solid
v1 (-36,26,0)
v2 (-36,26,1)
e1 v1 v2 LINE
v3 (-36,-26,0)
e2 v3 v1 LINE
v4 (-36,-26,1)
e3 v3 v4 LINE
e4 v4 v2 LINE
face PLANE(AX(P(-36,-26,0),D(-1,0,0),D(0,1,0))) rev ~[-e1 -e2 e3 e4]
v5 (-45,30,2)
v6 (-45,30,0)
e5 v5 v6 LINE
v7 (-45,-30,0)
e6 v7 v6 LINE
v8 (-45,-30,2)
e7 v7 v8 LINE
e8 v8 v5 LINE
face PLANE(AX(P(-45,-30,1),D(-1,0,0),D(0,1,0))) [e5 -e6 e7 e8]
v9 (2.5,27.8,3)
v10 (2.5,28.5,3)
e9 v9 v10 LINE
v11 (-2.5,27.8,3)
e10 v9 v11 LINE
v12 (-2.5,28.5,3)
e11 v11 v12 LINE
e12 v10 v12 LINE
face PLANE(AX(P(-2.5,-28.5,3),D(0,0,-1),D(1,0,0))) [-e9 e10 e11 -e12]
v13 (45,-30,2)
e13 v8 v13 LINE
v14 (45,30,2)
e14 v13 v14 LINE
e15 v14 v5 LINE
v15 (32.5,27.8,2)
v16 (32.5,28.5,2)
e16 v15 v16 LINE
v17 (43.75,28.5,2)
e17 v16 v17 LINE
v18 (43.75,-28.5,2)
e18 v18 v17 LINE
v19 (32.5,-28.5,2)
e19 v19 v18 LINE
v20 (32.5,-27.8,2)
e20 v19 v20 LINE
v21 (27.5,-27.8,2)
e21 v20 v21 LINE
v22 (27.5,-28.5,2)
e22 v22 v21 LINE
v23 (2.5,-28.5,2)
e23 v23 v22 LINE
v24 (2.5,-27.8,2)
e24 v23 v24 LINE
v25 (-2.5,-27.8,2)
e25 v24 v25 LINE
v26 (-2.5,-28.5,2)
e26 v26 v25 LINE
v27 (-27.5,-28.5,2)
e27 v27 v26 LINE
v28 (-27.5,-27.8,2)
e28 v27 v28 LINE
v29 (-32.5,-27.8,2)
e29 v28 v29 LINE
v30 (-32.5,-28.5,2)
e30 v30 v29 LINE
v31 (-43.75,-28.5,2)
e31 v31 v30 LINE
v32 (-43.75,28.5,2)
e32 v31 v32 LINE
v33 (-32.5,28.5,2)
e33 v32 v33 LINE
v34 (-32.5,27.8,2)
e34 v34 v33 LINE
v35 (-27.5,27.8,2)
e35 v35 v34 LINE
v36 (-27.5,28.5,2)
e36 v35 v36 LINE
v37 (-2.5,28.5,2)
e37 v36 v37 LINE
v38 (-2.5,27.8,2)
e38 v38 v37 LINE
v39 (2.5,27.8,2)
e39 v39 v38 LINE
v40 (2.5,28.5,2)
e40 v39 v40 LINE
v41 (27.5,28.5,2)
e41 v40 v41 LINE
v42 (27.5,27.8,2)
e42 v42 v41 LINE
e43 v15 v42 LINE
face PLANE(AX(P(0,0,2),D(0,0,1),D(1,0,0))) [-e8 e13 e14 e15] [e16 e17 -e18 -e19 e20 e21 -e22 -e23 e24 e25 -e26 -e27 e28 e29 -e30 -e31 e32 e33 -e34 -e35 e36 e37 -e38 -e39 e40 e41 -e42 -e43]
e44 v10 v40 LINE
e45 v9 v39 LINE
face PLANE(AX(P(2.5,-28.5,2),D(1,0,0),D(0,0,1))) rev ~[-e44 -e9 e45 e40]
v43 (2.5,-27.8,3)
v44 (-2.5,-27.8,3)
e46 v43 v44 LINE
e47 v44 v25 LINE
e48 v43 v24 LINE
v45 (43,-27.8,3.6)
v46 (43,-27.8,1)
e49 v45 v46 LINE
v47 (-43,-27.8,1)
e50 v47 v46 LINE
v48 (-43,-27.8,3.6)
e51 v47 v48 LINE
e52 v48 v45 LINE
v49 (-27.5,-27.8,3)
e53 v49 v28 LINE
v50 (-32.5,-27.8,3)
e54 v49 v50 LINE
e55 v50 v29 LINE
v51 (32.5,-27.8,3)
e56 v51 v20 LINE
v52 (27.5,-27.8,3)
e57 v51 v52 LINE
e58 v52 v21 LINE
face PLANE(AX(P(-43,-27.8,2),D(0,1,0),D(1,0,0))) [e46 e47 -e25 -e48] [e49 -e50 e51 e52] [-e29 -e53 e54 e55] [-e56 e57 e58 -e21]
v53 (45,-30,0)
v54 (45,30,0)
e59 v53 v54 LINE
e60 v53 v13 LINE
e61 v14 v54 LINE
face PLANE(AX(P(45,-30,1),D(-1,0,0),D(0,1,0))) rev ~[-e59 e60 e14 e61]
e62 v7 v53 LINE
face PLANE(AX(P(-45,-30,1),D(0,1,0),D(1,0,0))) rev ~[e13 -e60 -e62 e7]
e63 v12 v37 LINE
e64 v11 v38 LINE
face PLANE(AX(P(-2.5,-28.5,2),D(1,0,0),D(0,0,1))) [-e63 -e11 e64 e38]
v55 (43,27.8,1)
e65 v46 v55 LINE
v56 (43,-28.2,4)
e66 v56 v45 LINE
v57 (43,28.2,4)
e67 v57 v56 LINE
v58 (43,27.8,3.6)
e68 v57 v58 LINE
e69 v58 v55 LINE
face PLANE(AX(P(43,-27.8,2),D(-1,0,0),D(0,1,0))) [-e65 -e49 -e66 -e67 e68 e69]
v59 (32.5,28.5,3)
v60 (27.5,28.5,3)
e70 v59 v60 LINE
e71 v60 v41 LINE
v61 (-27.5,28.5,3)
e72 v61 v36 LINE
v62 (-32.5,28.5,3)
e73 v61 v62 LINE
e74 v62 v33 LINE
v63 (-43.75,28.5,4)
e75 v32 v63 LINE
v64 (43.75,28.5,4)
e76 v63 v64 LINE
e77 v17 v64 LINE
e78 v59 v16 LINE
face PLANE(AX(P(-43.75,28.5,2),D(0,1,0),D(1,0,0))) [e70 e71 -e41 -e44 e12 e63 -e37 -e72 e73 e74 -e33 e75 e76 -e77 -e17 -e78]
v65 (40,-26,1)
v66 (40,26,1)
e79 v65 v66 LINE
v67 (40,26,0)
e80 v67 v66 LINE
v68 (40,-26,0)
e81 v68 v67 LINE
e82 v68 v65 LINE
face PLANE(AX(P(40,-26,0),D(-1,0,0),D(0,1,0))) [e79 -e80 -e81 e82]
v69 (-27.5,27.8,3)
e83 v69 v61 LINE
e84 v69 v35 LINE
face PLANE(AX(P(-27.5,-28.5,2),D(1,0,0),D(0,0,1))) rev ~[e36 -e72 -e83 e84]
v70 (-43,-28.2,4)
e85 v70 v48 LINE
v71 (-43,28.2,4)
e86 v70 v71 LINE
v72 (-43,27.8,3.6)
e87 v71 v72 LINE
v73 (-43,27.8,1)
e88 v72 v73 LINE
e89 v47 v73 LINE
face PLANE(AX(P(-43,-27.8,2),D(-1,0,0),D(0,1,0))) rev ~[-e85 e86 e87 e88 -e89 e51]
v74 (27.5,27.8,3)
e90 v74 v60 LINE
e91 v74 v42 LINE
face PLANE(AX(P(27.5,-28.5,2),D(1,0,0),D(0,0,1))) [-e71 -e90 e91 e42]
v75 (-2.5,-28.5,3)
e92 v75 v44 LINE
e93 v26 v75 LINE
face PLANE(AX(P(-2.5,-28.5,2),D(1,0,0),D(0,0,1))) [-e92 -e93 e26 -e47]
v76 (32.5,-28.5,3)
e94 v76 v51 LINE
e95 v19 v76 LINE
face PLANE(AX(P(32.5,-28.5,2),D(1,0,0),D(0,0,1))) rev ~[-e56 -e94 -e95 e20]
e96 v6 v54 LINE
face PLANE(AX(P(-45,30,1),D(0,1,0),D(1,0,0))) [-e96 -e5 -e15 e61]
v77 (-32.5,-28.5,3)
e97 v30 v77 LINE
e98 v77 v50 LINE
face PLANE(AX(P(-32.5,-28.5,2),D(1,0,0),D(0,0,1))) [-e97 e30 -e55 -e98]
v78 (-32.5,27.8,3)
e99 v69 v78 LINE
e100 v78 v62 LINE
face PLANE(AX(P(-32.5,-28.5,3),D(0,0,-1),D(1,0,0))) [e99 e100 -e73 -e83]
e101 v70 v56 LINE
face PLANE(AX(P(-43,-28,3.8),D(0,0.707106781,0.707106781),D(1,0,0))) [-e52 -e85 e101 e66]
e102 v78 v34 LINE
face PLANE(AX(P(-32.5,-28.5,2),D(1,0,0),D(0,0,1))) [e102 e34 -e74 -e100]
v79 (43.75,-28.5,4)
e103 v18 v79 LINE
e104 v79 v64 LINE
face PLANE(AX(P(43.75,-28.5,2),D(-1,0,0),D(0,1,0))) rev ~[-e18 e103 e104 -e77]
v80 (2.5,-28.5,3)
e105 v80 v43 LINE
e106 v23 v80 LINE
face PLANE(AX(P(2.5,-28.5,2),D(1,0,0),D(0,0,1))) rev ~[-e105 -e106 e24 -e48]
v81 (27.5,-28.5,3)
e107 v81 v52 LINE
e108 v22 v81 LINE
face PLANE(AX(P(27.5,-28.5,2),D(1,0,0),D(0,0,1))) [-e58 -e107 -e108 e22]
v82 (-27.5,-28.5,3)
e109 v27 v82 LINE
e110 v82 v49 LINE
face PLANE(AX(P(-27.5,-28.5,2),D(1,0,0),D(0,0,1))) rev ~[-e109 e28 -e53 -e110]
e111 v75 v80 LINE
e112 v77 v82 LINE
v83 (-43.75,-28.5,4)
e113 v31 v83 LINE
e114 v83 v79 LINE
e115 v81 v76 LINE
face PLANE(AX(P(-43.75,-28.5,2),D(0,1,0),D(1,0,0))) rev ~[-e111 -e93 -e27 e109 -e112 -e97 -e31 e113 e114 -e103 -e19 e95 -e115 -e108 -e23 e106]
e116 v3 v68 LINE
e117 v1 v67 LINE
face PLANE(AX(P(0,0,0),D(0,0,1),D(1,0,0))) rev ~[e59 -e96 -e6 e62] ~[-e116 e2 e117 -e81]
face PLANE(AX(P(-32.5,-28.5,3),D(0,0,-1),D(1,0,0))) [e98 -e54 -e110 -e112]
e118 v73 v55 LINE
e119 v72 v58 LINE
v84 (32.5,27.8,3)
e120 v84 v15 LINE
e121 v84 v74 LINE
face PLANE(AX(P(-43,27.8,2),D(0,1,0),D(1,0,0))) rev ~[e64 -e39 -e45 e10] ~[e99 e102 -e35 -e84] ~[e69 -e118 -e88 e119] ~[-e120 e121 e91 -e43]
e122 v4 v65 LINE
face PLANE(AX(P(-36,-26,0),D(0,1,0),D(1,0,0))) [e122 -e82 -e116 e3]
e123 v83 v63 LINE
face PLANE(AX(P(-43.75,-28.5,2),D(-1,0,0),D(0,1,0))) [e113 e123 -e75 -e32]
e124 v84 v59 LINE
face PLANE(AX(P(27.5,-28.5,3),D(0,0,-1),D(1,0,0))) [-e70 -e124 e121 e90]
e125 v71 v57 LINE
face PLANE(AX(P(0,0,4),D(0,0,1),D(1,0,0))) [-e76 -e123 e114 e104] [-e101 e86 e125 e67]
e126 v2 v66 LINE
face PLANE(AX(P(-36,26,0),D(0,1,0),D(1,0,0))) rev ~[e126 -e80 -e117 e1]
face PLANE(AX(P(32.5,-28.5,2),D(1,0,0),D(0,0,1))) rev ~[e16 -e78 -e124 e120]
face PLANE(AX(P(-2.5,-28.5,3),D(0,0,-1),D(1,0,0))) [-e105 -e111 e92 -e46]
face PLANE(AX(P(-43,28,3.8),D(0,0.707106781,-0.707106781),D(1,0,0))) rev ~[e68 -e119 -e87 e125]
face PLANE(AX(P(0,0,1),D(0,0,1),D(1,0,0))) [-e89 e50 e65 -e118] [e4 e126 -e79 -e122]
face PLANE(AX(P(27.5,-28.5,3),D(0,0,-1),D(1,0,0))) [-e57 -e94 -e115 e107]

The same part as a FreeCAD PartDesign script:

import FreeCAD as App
import Part
import Sketcher


def edges_at(feature, points):
    """Names of the edges that pass closest to the given points."""
    edges = feature.Shape.Edges
    near = lambda p: min(range(len(edges)), key=lambda i: edges[i].distToShape(Part.Vertex(*p))[0])
    return sorted({f"Edge{near(p) + 1}" for p in points})

doc = App.newDocument("Part")
body = doc.addObject("PartDesign::Body", "Body")

# Sketch on XY plane
sketch1 = body.newObject("Sketcher::SketchObject", "Sketch")
sketch1.AttachmentSupport = (doc.getObject("XY_Plane"), [""])
sketch1.MapMode = "FlatFace"
sketch1.addGeometry([
    Part.LineSegment(App.Vector(-45, 30, 0), App.Vector(-45, -30, 0)),  # 0
    Part.LineSegment(App.Vector(-45, -30, 0), App.Vector(45, -30, 0)),  # 1
    Part.LineSegment(App.Vector(45, -30, 0), App.Vector(45, 30, 0)),  # 2
    Part.LineSegment(App.Vector(45, 30, 0), App.Vector(-45, 30, 0)),  # 3
    Part.LineSegment(App.Vector(40, -26, 0), App.Vector(-36, -26, 0)),  # 4
    Part.LineSegment(App.Vector(-36, -26, 0), App.Vector(-36, 26, 0)),  # 5
    Part.LineSegment(App.Vector(-36, 26, 0), App.Vector(40, 26, 0)),  # 6
    Part.LineSegment(App.Vector(40, 26, 0), App.Vector(40, -26, 0)),  # 7
], False)
sketch1.addConstraint([
    Sketcher.Constraint("Coincident", 0, 2, 1, 1),
    Sketcher.Constraint("Coincident", 1, 2, 2, 1),
    Sketcher.Constraint("Coincident", 2, 2, 3, 1),
    Sketcher.Constraint("Coincident", 3, 2, 0, 1),
    Sketcher.Constraint("Coincident", 4, 2, 5, 1),
    Sketcher.Constraint("Coincident", 5, 2, 6, 1),
    Sketcher.Constraint("Coincident", 6, 2, 7, 1),
    Sketcher.Constraint("Coincident", 7, 2, 4, 1),
    Sketcher.Constraint("Vertical", 0),
    Sketcher.Constraint("Horizontal", 1),
    Sketcher.Constraint("Vertical", 2),
    Sketcher.Constraint("Horizontal", 3),
    Sketcher.Constraint("Horizontal", 4),
    Sketcher.Constraint("Vertical", 5),
    Sketcher.Constraint("Horizontal", 6),
    Sketcher.Constraint("Vertical", 7),
    Sketcher.Constraint("Symmetric", 0, 2, 2, 2, -1, 1),
    Sketcher.Constraint("DistanceX", 1, 1, 1, 2, 90.0),
    Sketcher.Constraint("DistanceX", 4, 2, 4, 1, 76.0),
    Sketcher.Constraint("DistanceY", 0, 2, 0, 1, 60.0),
    Sketcher.Constraint("DistanceY", 5, 1, 5, 2, 52.0),
    Sketcher.Constraint("DistanceX", 4, 2, -1, 1, 36.0),
    Sketcher.Constraint("DistanceY", 4, 2, -1, 1, 26.0),
])
pad1 = body.newObject("PartDesign::Pad", "Pad")
pad1.Profile = sketch1
pad1.Length = 1

# Sketch on XY plane
sketch2 = body.newObject("Sketcher::SketchObject", "Sketch001")
sketch2.AttachmentSupport = (doc.getObject("XY_Plane"), [""])
sketch2.MapMode = "FlatFace"
sketch2.AttachmentOffset = App.Placement(App.Vector(0, 0, 1), App.Rotation())
sketch2.addGeometry([
    Part.LineSegment(App.Vector(-45, 30, 0), App.Vector(-45, -30, 0)),  # 0
    Part.LineSegment(App.Vector(-45, -30, 0), App.Vector(45, -30, 0)),  # 1
    Part.LineSegment(App.Vector(45, -30, 0), App.Vector(45, 30, 0)),  # 2
    Part.LineSegment(App.Vector(45, 30, 0), App.Vector(-45, 30, 0)),  # 3
    Part.LineSegment(App.Vector(43, -28, 0), App.Vector(-43, -28, 0)),  # 4
    Part.LineSegment(App.Vector(-43, -28, 0), App.Vector(-43, 28, 0)),  # 5
    Part.LineSegment(App.Vector(-43, 28, 0), App.Vector(43, 28, 0)),  # 6
    Part.LineSegment(App.Vector(43, 28, 0), App.Vector(43, -28, 0)),  # 7
], False)
sketch2.addConstraint([
    Sketcher.Constraint("Coincident", 0, 2, 1, 1),
    Sketcher.Constraint("Coincident", 1, 2, 2, 1),
    Sketcher.Constraint("Coincident", 2, 2, 3, 1),
    Sketcher.Constraint("Coincident", 3, 2, 0, 1),
    Sketcher.Constraint("Coincident", 4, 2, 5, 1),
    Sketcher.Constraint("Coincident", 5, 2, 6, 1),
    Sketcher.Constraint("Coincident", 6, 2, 7, 1),
    Sketcher.Constraint("Coincident", 7, 2, 4, 1),
    Sketcher.Constraint("Vertical", 0),
    Sketcher.Constraint("Horizontal", 1),
    Sketcher.Constraint("Vertical", 2),
    Sketcher.Constraint("Horizontal", 3),
    Sketcher.Constraint("Horizontal", 4),
    Sketcher.Constraint("Vertical", 5),
    Sketcher.Constraint("Horizontal", 6),
    Sketcher.Constraint("Vertical", 7),
    Sketcher.Constraint("Symmetric", 0, 2, 2, 2, -1, 1),
    Sketcher.Constraint("Symmetric", 4, 2, 6, 2, -1, 1),
    Sketcher.Constraint("DistanceX", 1, 1, 1, 2, 90.0),
    Sketcher.Constraint("DistanceX", 4, 2, 4, 1, 86.0),
    Sketcher.Constraint("DistanceY", 0, 2, 0, 1, 60.0),
    Sketcher.Constraint("DistanceY", 5, 1, 5, 2, 55.6),
])
pad2 = body.newObject("PartDesign::Pad", "Pad001")
pad2.Profile = sketch2
pad2.Length = 1

# Sketch on XY plane
sketch3 = body.newObject("Sketcher::SketchObject", "Sketch002")
sketch3.AttachmentSupport = (doc.getObject("XY_Plane"), [""])
sketch3.MapMode = "FlatFace"
sketch3.AttachmentOffset = App.Placement(App.Vector(0, 0, 2), App.Rotation())
sketch3.addGeometry([
    Part.LineSegment(App.Vector(-44, 28, 0), App.Vector(-44, -28, 0)),  # 0
    Part.LineSegment(App.Vector(-44, -28, 0), App.Vector(44, -28, 0)),  # 1
    Part.LineSegment(App.Vector(44, -28, 0), App.Vector(44, 28, 0)),  # 2
    Part.LineSegment(App.Vector(44, 28, 0), App.Vector(-44, 28, 0)),  # 3
    Part.LineSegment(App.Vector(43, -28, 0), App.Vector(-43, -28, 0)),  # 4
    Part.LineSegment(App.Vector(-43, -28, 0), App.Vector(-43, 28, 0)),  # 5
    Part.LineSegment(App.Vector(-43, 28, 0), App.Vector(43, 28, 0)),  # 6
    Part.LineSegment(App.Vector(43, 28, 0), App.Vector(43, -28, 0)),  # 7
], False)
sketch3.addConstraint([
    Sketcher.Constraint("Coincident", 0, 2, 1, 1),
    Sketcher.Constraint("Coincident", 1, 2, 2, 1),
    Sketcher.Constraint("Coincident", 2, 2, 3, 1),
    Sketcher.Constraint("Coincident", 3, 2, 0, 1),
    Sketcher.Constraint("Coincident", 4, 2, 5, 1),
    Sketcher.Constraint("Coincident", 5, 2, 6, 1),
    Sketcher.Constraint("Coincident", 6, 2, 7, 1),
    Sketcher.Constraint("Coincident", 7, 2, 4, 1),
    Sketcher.Constraint("Vertical", 0),
    Sketcher.Constraint("Horizontal", 1),
    Sketcher.Constraint("Vertical", 2),
    Sketcher.Constraint("Horizontal", 3),
    Sketcher.Constraint("Horizontal", 4),
    Sketcher.Constraint("Vertical", 5),
    Sketcher.Constraint("Horizontal", 6),
    Sketcher.Constraint("Vertical", 7),
    Sketcher.Constraint("Symmetric", 0, 2, 2, 2, -1, 1),
    Sketcher.Constraint("Symmetric", 4, 2, 6, 2, -1, 1),
    Sketcher.Constraint("DistanceX", 4, 2, 4, 1, 86.0),
    Sketcher.Constraint("DistanceY", 0, 2, 0, 1, 57.0),
    Sketcher.Constraint("DistanceX", 1, 1, 1, 2, 87.5),
    Sketcher.Constraint("DistanceY", 5, 1, 5, 2, 55.6),
])
pad3 = body.newObject("PartDesign::Pad", "Pad002")
pad3.Profile = sketch3
pad3.Length = 2

# Sketch on XZ plane
sketch4 = body.newObject("Sketcher::SketchObject", "Sketch003")
sketch4.AttachmentSupport = (doc.getObject("XZ_Plane"), [""])
sketch4.MapMode = "FlatFace"
sketch4.AttachmentOffset = App.Placement(App.Vector(0, 0, 28.5), App.Rotation())
sketch4.addGeometry([
    Part.LineSegment(App.Vector(-32.5, 3, 0), App.Vector(-32.5, 2, 0)),  # 0
    Part.LineSegment(App.Vector(-32.5, 2, 0), App.Vector(-27.5, 2, 0)),  # 1
    Part.LineSegment(App.Vector(-27.5, 2, 0), App.Vector(-27.5, 3, 0)),  # 2
    Part.LineSegment(App.Vector(-27.5, 3, 0), App.Vector(-32.5, 3, 0)),  # 3
    Part.LineSegment(App.Vector(-2.5, 3, 0), App.Vector(-2.5, 2, 0)),  # 4
    Part.LineSegment(App.Vector(-2.5, 2, 0), App.Vector(2.5, 2, 0)),  # 5
    Part.LineSegment(App.Vector(2.5, 2, 0), App.Vector(2.5, 3, 0)),  # 6
    Part.LineSegment(App.Vector(2.5, 3, 0), App.Vector(-2.5, 3, 0)),  # 7
    Part.LineSegment(App.Vector(27.5, 3, 0), App.Vector(27.5, 2, 0)),  # 8
    Part.LineSegment(App.Vector(27.5, 2, 0), App.Vector(32.5, 2, 0)),  # 9
    Part.LineSegment(App.Vector(32.5, 2, 0), App.Vector(32.5, 3, 0)),  # 10
    Part.LineSegment(App.Vector(32.5, 3, 0), App.Vector(27.5, 3, 0)),  # 11
], False)
sketch4.addConstraint([
    Sketcher.Constraint("Coincident", 0, 2, 1, 1),
    Sketcher.Constraint("Coincident", 1, 2, 2, 1),
    Sketcher.Constraint("Coincident", 2, 2, 3, 1),
    Sketcher.Constraint("Coincident", 3, 2, 0, 1),
    Sketcher.Constraint("Coincident", 4, 2, 5, 1),
    Sketcher.Constraint("Coincident", 5, 2, 6, 1),
    Sketcher.Constraint("Coincident", 6, 2, 7, 1),
    Sketcher.Constraint("Coincident", 7, 2, 4, 1),
    Sketcher.Constraint("Coincident", 8, 2, 9, 1),
    Sketcher.Constraint("Coincident", 9, 2, 10, 1),
    Sketcher.Constraint("Coincident", 10, 2, 11, 1),
    Sketcher.Constraint("Coincident", 11, 2, 8, 1),
    Sketcher.Constraint("Vertical", 0),
    Sketcher.Constraint("Horizontal", 1),
    Sketcher.Constraint("Vertical", 2),
    Sketcher.Constraint("Horizontal", 3),
    Sketcher.Constraint("Vertical", 4),
    Sketcher.Constraint("Horizontal", 5),
    Sketcher.Constraint("Vertical", 6),
    Sketcher.Constraint("Horizontal", 7),
    Sketcher.Constraint("Vertical", 8),
    Sketcher.Constraint("Horizontal", 9),
    Sketcher.Constraint("Vertical", 10),
    Sketcher.Constraint("Horizontal", 11),
    Sketcher.Constraint("Symmetric", 1, 2, 8, 2, -2),
    Sketcher.Constraint("Symmetric", 3, 2, 10, 2, -2),
    Sketcher.Constraint("Horizontal", 1, 2, 4, 2),
    Sketcher.Constraint("Horizontal", 3, 2, 6, 2),
    Sketcher.Constraint("Equal", 3, 5),
    Sketcher.Constraint("DistanceX", 1, 1, 1, 2, 5.0),
    Sketcher.Constraint("DistanceY", 0, 2, 0, 1, 1.0),
    Sketcher.Constraint("DistanceY", -1, 1, 0, 2, 2.0),
    Sketcher.Constraint("DistanceX", 1, 2, 4, 2, 25.0),
    Sketcher.Constraint("DistanceX", 5, 2, 8, 2, 25.0),
])
pocket1 = body.newObject("PartDesign::Pocket", "Pocket")
pocket1.Profile = sketch4
pocket1.Type = "ThroughAll"
doc.recompute()

chamfer = body.newObject("PartDesign::Chamfer", "Chamfer")
chamfer.Base = (pocket1, edges_at(pocket1, [(0, 27.8, 4), (0, -27.8, 4)]))
chamfer.Size = 0.4

doc.recompute()
